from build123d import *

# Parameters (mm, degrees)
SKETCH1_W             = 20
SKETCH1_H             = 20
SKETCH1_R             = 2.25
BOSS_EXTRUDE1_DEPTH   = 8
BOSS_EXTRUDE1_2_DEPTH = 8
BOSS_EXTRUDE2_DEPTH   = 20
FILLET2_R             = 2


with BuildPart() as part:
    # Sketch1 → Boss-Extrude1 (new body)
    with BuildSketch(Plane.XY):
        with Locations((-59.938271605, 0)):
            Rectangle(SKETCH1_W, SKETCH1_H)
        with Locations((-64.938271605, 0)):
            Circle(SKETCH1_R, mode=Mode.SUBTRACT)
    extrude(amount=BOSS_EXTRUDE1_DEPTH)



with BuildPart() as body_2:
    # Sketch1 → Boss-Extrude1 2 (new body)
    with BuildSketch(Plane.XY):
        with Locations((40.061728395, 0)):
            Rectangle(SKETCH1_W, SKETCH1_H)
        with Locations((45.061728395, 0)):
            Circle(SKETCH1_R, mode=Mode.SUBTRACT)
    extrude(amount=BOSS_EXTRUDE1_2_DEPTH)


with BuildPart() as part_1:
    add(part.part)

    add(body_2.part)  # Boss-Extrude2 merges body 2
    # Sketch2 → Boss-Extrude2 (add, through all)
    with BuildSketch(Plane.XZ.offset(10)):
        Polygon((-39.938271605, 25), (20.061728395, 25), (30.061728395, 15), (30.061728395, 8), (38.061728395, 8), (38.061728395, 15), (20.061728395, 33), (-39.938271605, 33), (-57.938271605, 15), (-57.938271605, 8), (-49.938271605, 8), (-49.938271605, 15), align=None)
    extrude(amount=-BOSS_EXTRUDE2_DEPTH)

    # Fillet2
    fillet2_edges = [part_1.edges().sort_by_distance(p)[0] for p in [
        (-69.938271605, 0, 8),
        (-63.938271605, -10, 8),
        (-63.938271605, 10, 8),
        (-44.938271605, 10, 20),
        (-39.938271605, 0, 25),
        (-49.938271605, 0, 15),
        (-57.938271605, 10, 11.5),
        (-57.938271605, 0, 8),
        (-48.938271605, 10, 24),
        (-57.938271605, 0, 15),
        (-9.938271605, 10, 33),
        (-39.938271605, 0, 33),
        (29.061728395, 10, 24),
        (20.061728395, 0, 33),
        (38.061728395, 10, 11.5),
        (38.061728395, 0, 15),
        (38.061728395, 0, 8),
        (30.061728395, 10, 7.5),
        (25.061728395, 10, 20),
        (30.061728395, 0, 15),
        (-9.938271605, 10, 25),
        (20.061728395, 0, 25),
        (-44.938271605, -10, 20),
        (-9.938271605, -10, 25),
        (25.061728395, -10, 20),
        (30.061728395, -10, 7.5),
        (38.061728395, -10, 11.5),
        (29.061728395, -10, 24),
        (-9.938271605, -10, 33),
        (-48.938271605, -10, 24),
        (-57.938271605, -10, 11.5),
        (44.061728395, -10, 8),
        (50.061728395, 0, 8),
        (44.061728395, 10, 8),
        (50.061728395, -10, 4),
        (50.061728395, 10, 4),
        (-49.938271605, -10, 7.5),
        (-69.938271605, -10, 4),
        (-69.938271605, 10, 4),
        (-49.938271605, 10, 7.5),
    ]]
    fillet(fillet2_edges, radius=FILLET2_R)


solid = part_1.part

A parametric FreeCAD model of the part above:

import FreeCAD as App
import Part
import Sketcher
from FreeCAD import Vector
Q = App.Units.Quantity


def edges_at(feature, points):
    """Names of the edges that pass closest to the given points."""
    edges = feature.Shape.Edges
    near = lambda p: min(range(len(edges)), key=lambda i: edges[i].distToShape(Part.Vertex(*p))[0])
    return sorted({f"Edge{near(p) + 1}" for p in points})


def add_polygon(sketch, points):
    """Adds a closed chain of lines whose ends are joined by coincident constraints."""
    first, n = sketch.GeometryCount, len(points)
    for a, b in zip(points, points[1:] + points[:1]):
        sketch.addGeometry(Part.LineSegment(App.Vector(*a, 0), App.Vector(*b, 0)), False)
    for i in range(n):
        sketch.addConstraint(Sketcher.Constraint("Coincident", first + i, 2, first + (i + 1) % n, 1))

doc = App.newDocument("Part")
params = doc.addObject("Spreadsheet::Sheet", "Params")
for row, (alias, value) in enumerate([
    ("sketch1_diameter", "4.5 mm"),
    ("sketch1_width", "20 mm"),
    ("pad1_length", "8 mm"),
    ("sketch2_diameter", "4.5 mm"),
    ("sketch2_width", "20 mm"),
    ("pad2_length", "8 mm"),
    ("sketch3_width", "60 mm"),
    ("sketch3_width2", "8 mm"),
    ("sketch3_height", "7 mm"),
    ("pad3_length", "20 mm"),
    ("fillet_radius", "2 mm"),
], start=1):
    params.set(f"A{row}", alias)
    params.set(f"B{row}", "=" + value)
    params.setAlias(f"B{row}", alias)

body = doc.addObject("PartDesign::Body", "Body")

sketch1 = body.newObject("Sketcher::SketchObject", "Sketch")
sketch1.AttachmentSupport = (doc.getObject("XY_Plane"), [""])
sketch1.MapMode = "FlatFace"
add_polygon(sketch1, [(-69.9, 10), (-69.9, -10), (-49.9, -10), (-49.9, 10)])
sketch1.addGeometry(Part.Circle(Vector(-64.9, 0, 0), Vector(0, 0, 1), 2.2), False)
sketch1.addConstraint([
    Sketcher.Constraint("Vertical", 0),
    Sketcher.Constraint("Horizontal", 1),
    Sketcher.Constraint("Vertical", 2),
    Sketcher.Constraint("Horizontal", 3),
    Sketcher.Constraint("PointOnObject", 4, 3, -1),
    Sketcher.Constraint("Equal", 3, 0),
    Sketcher.Constraint("Diameter", 4, Q("4.5 mm")),
    Sketcher.Constraint("DistanceX", 1, 1, 1, 2, Q("20 mm")),
    Sketcher.Constraint("DistanceY", 0, 2, -1, 1, Q("10 mm")),
    Sketcher.Constraint("DistanceX", 0, 2, 4, 3, Q("5 mm")),
    Sketcher.Constraint("DistanceX", 4, 3, -1, 1, Q("64.938272 mm")),
])
sketch1.setExpression("Constraints[10]", "Params.sketch1_diameter")
sketch1.setExpression("Constraints[11]", "Params.sketch1_width")
pad1 = body.newObject("PartDesign::Pad", "Pad")
pad1.Profile = sketch1
pad1.setExpression("Length", "Params.pad1_length")
body2 = doc.addObject("PartDesign::Body", "Body001")

sketch2 = body2.newObject("Sketcher::SketchObject", "Sketch001")
sketch2.AttachmentSupport = (doc.getObject("XY_Plane001"), [""])
sketch2.MapMode = "FlatFace"
add_polygon(sketch2, [(30.1, 10), (30.1, -10), (50.1, -10), (50.1, 10)])
sketch2.addGeometry(Part.Circle(Vector(45.1, 0, 0), Vector(0, 0, 1), 2.2), False)
sketch2.addConstraint([
    Sketcher.Constraint("Vertical", 0),
    Sketcher.Constraint("Horizontal", 1),
    Sketcher.Constraint("Vertical", 2),
    Sketcher.Constraint("Horizontal", 3),
    Sketcher.Constraint("PointOnObject", 4, 3, -1),
    Sketcher.Constraint("Equal", 3, 0),
    Sketcher.Constraint("Diameter", 4, Q("4.5 mm")),
    Sketcher.Constraint("DistanceX", 1, 1, 1, 2, Q("20 mm")),
    Sketcher.Constraint("DistanceY", 0, 2, -1, 1, Q("10 mm")),
    Sketcher.Constraint("DistanceX", 0, 2, 4, 3, Q("15 mm")),
    Sketcher.Constraint("DistanceX", -1, 1, 4, 3, Q("45.061728 mm")),
])
sketch2.setExpression("Constraints[10]", "Params.sketch2_diameter")
sketch2.setExpression("Constraints[11]", "Params.sketch2_width")
pad2 = body2.newObject("PartDesign::Pad", "Pad001")
pad2.Profile = sketch2
pad2.setExpression("Length", "Params.pad2_length")
body.AllowCompound = True
doc.recompute()

boolean = body.newObject("PartDesign::Boolean", "Boolean")
boolean.Type = "Fuse"
boolean.addObjects([body2])

sketch3 = body.newObject("Sketcher::SketchObject", "Sketch002")
sketch3.AttachmentSupport = (doc.getObject("XZ_Plane"), [""])
sketch3.MapMode = "FlatFace"
sketch3.AttachmentOffset = App.Placement(Vector(0, 0, 10), App.Rotation())
add_polygon(sketch3, [(-40, 25), (20, 25), (30, 15), (30, 8), (38, 8), (38, 15), (20, 33), (-40, 33), (-58, 15), (-58, 8), (-50, 8), (-50, 15)])
sketch3.addConstraint([
    Sketcher.Constraint("Horizontal", 0),
    Sketcher.Constraint("Vertical", 2),
    Sketcher.Constraint("Horizontal", 3),
    Sketcher.Constraint("Vertical", 4),
    Sketcher.Constraint("Horizontal", 6),
    Sketcher.Constraint("Vertical", 8),
    Sketcher.Constraint("Horizontal", 9),
    Sketcher.Constraint("Vertical", 10),
    Sketcher.Constraint("Parallel", 1, 5),
    Sketcher.Constraint("Perpendicular", 5, 7),
    Sketcher.Constraint("Parallel", 7, 11),
    Sketcher.Constraint("Horizontal", 1, 2, 4, 2),
    Sketcher.Constraint("Horizontal", 4, 2, 7, 2),
    Sketcher.Constraint("Horizontal", 3, 2, 8, 2),
    Sketcher.Constraint("Horizontal", 7, 2, 10, 2),
    Sketcher.Constraint("Vertical", 0, 2, 5, 2),
    Sketcher.Constraint("Vertical", 6, 2, 11, 2),
    Sketcher.Constraint("Equal", 3, 9),
    Sketcher.Constraint("DistanceX", 0, 1, 0, 2, Q("60 mm")),
    Sketcher.Constraint("DistanceX", 3, 1, 3, 2, Q("8 mm")),
    Sketcher.Constraint("DistanceY", 2, 2, 2, 1, Q("7 mm")),
    Sketcher.Constraint("DistanceY", -1, 1, 0, 2, Q("25 mm")),
    Sketcher.Constraint("DistanceY", -1, 1, 1, 2, Q("15 mm")),
    Sketcher.Constraint("DistanceX", -1, 1, 0, 2, Q("20.061728 mm")),
])
sketch3.setExpression("Constraints[30]", "Params.sketch3_width")
sketch3.setExpression("Constraints[31]", "Params.sketch3_width2")
sketch3.setExpression("Constraints[32]", "Params.sketch3_height")
pad3 = body.newObject("PartDesign::Pad", "Pad002")
pad3.Profile = sketch3
pad3.setExpression("Length", "Params.pad3_length")
pad3.Reversed = True
doc.recompute()

fillet = body.newObject("PartDesign::Fillet", "Fillet")
fillet.Base = (pad3, edges_at(pad3, [
    (-69.938, 0, 8),
    (-63.938, -10, 8),
    (-63.938, 10, 8),
    (-44.938, 10, 20),
    (-39.938, 0, 25),
    (-49.938, 0, 15),
    (-57.938, 10, 11.5),
    (-57.938, 0, 8),
    (-48.938, 10, 24),
    (-57.938, 0, 15),
    (-9.938, 10, 33),
    (-39.938, 0, 33),
    (29.062, 10, 24),
    (20.062, 0, 33),
    (38.062, 10, 11.5),
    (38.062, 0, 15),
    (38.062, 0, 8),
    (30.062, 10, 7.5),
    (25.062, 10, 20),
    (30.062, 0, 15),
    (-9.938, 10, 25),
    (20.062, 0, 25),
    (-44.938, -10, 20),
    (-9.938, -10, 25),
    (25.062, -10, 20),
    (30.062, -10, 7.5),
    (38.062, -10, 11.5),
    (29.062, -10, 24),
    (-9.938, -10, 33),
    (-48.938, -10, 24),
    (-57.938, -10, 11.5),
    (44.062, -10, 8),
    (50.062, 0, 8),
    (44.062, 10, 8),
    (50.062, -10, 4),
    (50.062, 10, 4),
    (-49.938, -10, 7.5),
    (-69.938, -10, 4),
    (-69.938, 10, 4),
    (-49.938, 10, 7.5),
]))
fillet.setExpression("Radius", "Params.fillet_radius")

doc.recompute()
